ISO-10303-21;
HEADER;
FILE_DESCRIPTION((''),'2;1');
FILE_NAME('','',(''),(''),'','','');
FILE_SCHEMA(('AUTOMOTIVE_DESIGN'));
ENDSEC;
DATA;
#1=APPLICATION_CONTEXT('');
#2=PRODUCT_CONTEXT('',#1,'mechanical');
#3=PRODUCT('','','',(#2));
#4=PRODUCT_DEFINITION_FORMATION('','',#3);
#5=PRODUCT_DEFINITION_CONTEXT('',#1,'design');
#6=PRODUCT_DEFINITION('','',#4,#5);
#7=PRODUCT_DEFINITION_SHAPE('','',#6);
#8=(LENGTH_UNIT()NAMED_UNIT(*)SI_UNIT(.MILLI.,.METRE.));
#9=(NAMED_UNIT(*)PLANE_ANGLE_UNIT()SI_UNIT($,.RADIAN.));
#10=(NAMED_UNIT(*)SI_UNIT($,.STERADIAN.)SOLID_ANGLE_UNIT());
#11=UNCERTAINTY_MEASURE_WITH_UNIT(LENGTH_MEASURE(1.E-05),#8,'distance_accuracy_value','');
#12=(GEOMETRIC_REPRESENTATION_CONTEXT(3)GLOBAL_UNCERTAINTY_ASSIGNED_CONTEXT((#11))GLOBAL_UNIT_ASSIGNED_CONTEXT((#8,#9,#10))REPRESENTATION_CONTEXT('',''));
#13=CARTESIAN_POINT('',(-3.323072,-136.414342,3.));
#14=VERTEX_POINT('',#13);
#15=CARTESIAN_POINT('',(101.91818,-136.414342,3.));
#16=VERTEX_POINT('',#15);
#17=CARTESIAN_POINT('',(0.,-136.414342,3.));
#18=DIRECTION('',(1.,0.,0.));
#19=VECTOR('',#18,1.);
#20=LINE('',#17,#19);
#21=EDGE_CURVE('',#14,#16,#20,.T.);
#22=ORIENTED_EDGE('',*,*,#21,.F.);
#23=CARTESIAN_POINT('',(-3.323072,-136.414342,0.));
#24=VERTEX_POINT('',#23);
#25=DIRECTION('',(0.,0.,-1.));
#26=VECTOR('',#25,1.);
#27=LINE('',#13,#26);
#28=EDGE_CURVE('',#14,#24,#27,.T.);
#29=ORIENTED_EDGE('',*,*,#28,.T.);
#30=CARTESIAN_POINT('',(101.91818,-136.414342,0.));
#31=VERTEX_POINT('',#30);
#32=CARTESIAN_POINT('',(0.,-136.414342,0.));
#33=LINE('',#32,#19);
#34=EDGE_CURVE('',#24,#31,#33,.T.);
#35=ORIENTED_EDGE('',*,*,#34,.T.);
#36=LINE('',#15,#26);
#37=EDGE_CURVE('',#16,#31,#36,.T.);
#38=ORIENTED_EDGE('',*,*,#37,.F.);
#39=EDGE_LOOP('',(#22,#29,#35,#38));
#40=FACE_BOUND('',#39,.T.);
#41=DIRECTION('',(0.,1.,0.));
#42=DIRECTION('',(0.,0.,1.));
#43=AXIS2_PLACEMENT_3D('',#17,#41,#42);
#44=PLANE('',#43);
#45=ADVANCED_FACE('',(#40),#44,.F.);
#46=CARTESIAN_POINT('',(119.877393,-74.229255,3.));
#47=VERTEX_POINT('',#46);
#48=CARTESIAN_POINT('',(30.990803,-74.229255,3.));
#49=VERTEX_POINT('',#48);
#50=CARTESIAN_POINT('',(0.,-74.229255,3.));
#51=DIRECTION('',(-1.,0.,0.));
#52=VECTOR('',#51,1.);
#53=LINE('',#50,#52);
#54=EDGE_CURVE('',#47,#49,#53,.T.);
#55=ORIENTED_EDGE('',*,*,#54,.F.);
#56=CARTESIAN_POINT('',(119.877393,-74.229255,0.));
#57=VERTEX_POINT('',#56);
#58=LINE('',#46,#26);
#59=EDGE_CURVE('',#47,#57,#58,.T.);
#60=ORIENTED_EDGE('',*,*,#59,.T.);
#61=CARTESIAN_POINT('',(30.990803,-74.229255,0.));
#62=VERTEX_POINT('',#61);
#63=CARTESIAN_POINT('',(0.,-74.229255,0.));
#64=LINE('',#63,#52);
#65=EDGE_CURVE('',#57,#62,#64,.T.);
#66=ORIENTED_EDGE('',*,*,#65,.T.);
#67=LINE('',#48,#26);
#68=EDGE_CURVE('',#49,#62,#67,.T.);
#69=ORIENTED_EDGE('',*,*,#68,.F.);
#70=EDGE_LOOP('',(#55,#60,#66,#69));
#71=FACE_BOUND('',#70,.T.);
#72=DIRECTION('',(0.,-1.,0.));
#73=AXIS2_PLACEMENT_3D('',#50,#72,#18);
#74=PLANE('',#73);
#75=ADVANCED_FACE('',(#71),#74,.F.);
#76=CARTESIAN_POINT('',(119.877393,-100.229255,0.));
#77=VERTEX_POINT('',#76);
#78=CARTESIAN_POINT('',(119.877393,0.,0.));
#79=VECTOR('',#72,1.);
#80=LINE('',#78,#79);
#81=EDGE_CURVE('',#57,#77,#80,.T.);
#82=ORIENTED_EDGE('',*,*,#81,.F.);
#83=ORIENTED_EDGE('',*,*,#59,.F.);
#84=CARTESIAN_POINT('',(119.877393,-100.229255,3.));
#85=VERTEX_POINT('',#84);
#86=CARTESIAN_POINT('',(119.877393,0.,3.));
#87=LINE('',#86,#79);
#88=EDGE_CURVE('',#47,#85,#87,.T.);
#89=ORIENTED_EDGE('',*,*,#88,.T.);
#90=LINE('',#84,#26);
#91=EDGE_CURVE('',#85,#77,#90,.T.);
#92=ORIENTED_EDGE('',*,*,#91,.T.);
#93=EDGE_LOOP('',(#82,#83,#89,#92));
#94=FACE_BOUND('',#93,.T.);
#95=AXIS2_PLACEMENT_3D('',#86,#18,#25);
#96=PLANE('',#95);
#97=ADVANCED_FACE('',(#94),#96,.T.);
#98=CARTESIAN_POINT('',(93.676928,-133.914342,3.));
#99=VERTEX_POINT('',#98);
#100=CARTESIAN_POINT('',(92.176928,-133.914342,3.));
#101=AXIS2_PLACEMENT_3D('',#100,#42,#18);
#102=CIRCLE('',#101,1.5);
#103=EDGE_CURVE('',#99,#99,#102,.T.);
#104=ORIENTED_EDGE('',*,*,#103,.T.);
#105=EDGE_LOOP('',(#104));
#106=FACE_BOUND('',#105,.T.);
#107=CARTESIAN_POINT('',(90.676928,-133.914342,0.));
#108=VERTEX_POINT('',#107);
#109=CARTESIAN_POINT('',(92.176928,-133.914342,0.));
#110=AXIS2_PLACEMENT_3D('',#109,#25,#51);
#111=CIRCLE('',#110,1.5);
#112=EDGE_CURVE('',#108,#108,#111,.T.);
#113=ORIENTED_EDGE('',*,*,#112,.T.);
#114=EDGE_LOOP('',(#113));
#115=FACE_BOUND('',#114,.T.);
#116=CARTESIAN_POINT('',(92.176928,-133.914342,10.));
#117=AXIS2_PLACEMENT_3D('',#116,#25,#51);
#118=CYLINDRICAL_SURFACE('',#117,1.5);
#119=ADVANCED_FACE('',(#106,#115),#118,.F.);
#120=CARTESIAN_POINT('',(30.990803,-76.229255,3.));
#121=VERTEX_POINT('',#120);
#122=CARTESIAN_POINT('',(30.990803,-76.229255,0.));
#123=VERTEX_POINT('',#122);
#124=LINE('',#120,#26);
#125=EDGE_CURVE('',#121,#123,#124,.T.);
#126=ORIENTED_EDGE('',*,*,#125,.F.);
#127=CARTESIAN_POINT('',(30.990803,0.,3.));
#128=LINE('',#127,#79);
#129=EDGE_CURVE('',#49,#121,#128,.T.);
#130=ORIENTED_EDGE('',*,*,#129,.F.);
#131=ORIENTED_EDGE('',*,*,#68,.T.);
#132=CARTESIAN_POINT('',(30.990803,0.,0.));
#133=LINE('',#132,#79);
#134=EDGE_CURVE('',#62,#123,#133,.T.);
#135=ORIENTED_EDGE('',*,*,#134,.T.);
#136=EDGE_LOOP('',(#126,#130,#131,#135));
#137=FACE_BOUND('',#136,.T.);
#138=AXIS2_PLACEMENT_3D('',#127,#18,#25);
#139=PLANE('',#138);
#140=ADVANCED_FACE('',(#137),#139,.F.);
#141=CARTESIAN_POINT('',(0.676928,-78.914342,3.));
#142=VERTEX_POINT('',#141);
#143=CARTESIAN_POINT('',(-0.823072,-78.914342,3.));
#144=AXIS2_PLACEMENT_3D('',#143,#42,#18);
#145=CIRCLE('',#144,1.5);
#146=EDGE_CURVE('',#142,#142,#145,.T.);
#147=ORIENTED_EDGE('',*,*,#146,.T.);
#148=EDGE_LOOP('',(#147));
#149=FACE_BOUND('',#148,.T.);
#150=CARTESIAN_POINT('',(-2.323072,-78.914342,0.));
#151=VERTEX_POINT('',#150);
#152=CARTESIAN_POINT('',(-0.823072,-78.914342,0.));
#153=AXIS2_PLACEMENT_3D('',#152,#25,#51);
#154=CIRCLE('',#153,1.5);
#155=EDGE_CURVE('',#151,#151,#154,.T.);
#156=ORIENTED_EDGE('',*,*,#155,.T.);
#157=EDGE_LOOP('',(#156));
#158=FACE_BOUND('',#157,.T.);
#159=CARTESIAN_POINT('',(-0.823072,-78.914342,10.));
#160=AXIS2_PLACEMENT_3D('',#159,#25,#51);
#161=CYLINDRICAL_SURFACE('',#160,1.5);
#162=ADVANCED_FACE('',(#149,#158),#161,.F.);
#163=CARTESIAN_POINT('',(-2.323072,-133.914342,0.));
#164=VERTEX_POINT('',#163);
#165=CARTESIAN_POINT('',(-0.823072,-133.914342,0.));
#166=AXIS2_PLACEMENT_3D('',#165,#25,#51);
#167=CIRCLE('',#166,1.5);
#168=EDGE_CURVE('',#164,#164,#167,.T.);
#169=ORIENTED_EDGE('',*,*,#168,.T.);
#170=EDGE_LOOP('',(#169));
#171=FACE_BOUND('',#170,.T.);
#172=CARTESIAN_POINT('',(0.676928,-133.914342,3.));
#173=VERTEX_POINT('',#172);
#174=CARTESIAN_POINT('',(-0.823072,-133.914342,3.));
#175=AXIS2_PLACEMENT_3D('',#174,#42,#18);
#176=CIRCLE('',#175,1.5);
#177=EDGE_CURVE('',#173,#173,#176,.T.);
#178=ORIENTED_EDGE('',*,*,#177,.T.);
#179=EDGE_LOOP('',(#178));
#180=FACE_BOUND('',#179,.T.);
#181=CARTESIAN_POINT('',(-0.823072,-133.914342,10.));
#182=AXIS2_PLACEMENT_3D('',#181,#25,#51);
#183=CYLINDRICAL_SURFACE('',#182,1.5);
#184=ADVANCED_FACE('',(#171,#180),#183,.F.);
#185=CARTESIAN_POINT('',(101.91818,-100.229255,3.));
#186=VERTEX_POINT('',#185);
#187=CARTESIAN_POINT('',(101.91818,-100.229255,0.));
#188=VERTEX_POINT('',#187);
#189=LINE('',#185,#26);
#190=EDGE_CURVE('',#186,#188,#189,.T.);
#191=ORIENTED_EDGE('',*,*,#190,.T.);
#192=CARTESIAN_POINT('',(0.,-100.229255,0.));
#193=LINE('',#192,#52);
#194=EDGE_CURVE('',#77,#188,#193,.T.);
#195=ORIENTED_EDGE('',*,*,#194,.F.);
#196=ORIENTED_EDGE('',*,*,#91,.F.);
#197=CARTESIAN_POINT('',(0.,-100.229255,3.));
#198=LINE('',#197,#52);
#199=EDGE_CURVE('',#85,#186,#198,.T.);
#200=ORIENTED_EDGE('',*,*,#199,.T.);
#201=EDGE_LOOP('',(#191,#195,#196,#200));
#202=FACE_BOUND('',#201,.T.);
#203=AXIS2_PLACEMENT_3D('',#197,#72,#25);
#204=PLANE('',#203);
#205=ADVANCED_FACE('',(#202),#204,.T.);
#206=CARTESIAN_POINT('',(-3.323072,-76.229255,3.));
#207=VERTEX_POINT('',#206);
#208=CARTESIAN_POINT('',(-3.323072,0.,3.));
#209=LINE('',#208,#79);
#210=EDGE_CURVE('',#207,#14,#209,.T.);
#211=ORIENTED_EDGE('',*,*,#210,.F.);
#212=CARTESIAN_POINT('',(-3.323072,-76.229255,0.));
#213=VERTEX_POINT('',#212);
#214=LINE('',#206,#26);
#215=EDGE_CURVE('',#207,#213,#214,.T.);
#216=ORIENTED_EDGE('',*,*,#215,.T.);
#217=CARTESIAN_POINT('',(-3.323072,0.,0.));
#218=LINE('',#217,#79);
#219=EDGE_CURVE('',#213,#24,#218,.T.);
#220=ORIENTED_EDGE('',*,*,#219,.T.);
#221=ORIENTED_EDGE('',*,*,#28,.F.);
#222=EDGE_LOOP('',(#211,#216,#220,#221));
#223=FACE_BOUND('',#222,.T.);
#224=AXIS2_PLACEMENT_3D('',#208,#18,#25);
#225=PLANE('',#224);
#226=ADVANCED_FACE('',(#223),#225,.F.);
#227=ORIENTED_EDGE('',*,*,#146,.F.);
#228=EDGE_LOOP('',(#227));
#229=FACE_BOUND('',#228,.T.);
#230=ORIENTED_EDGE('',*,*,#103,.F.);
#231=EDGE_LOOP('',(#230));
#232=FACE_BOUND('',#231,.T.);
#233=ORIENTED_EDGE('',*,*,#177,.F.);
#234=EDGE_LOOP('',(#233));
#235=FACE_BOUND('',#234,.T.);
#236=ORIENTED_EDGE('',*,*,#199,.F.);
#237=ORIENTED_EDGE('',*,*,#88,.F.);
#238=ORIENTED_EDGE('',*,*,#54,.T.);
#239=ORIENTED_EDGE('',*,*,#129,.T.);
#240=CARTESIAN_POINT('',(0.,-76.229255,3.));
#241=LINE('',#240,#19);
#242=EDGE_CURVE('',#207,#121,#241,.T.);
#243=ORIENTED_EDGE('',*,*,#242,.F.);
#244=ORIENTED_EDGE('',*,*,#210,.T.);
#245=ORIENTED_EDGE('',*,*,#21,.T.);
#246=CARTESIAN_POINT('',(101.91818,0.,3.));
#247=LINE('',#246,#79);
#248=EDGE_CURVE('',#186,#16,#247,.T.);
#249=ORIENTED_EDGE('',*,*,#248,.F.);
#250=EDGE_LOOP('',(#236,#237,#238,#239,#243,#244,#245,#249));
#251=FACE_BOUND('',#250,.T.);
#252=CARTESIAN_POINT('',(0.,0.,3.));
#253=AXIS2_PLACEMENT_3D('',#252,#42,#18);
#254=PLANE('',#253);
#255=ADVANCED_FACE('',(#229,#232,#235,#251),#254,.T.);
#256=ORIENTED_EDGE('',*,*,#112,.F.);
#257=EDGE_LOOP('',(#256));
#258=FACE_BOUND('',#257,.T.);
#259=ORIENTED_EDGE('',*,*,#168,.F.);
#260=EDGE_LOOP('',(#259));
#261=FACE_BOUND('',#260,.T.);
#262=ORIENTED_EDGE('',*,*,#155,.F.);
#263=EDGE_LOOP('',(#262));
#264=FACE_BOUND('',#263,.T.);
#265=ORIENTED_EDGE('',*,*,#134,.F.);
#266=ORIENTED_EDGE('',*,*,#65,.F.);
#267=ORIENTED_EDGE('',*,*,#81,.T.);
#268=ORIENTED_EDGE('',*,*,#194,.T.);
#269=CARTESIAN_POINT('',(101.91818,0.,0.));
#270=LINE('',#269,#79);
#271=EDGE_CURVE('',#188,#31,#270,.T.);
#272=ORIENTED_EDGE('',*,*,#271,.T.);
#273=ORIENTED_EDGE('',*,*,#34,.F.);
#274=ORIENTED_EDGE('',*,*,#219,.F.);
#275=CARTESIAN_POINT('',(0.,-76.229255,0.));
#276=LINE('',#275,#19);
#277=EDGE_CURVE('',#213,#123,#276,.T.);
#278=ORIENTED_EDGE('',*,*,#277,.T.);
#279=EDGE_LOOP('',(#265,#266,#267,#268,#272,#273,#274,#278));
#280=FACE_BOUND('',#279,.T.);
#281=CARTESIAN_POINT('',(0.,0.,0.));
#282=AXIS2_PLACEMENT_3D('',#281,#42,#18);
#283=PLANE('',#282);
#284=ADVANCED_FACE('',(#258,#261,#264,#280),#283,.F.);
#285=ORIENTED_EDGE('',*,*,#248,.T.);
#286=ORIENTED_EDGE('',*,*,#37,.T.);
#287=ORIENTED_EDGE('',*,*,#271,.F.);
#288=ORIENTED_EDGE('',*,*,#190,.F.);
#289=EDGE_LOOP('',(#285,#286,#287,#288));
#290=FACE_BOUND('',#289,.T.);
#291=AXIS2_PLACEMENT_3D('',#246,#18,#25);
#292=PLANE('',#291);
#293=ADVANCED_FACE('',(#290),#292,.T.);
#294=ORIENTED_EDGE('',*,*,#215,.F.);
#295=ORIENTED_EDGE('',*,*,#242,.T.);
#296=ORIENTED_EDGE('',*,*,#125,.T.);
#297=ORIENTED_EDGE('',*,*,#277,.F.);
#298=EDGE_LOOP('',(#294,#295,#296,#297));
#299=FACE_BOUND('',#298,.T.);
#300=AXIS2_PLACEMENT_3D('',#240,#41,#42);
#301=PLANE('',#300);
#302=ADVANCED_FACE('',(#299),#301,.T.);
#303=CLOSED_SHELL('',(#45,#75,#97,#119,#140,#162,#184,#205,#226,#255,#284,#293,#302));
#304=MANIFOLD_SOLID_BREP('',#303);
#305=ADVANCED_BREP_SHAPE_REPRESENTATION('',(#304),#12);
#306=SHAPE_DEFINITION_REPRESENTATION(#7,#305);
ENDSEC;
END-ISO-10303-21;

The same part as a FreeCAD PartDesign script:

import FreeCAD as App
import Part
import Sketcher

V = App.Vector
Q = App.Units.Quantity

doc = App.newDocument("Part")
params = doc.addObject("Spreadsheet::Sheet", "Params")
for row, (alias, value) in enumerate([
    ("sketch1_height", "2 mm"),
    ("sketch1_height2", "26 mm"),
    ("pad1_length", "3 mm"),
    ("sketch2_diameter", "3 mm"),
    ("pocket1_length", "10 mm"),
], start=1):
    params.set(f"A{row}", alias)
    params.set(f"B{row}", "=" + value)
    params.setAlias(f"B{row}", alias)

body = doc.addObject("PartDesign::Body", "Body")

# Sketch on XY plane
sketch1 = doc.addObject("Sketcher::SketchObject", "Sketch")
body.addObject(sketch1)
sketch1.AttachmentSupport = (doc.XY_Plane, [""])
sketch1.MapMode = "FlatFace"
sketch1.addGeometry([
    Part.LineSegment(V(119.9, -74.2, 0), V(31, -74.2, 0)),  # 0
    Part.LineSegment(V(31, -74.2, 0), V(31, -76.2, 0)),  # 1
    Part.LineSegment(V(31, -76.2, 0), V(-3.3, -76.2, 0)),  # 2
    Part.LineSegment(V(-3.3, -76.2, 0), V(-3.3, -136.4, 0)),  # 3
    Part.LineSegment(V(-3.3, -136.4, 0), V(101.9, -136.4, 0)),  # 4
    Part.LineSegment(V(101.9, -136.4, 0), V(101.9, -100.2, 0)),  # 5
    Part.LineSegment(V(101.9, -100.2, 0), V(119.9, -100.2, 0)),  # 6
    Part.LineSegment(V(119.9, -100.2, 0), V(119.9, -74.2, 0)),  # 7
], False)
sketch1.addConstraint([
    Sketcher.Constraint("Coincident", 0, 2, 1, 1),
    Sketcher.Constraint("Coincident", 1, 2, 2, 1),
    Sketcher.Constraint("Coincident", 2, 2, 3, 1),
    Sketcher.Constraint("Coincident", 3, 2, 4, 1),
    Sketcher.Constraint("Coincident", 4, 2, 5, 1),
    Sketcher.Constraint("Coincident", 5, 2, 6, 1),
    Sketcher.Constraint("Coincident", 6, 2, 7, 1),
    Sketcher.Constraint("Coincident", 7, 2, 0, 1),
    Sketcher.Constraint("Horizontal", 0),
    Sketcher.Constraint("Vertical", 1),
    Sketcher.Constraint("Horizontal", 2),
    Sketcher.Constraint("Vertical", 3),
    Sketcher.Constraint("Horizontal", 4),
    Sketcher.Constraint("Vertical", 5),
    Sketcher.Constraint("Horizontal", 6),
    Sketcher.Constraint("Vertical", 7),
    Sketcher.Constraint("DistanceY", 1, 2, 1, 1, Q("2 mm")),
    Sketcher.Constraint("DistanceY", 7, 1, 7, 2, Q("26 mm")),
    Sketcher.Constraint("DistanceX", 0, 2, 0, 1, Q("88.88659 mm")),
    Sketcher.Constraint("DistanceX", 4, 1, 4, 2, Q("105.241251 mm")),
    Sketcher.Constraint("DistanceX", 2, 2, 2, 1, Q("34.313875 mm")),
    Sketcher.Constraint("DistanceY", 3, 2, 3, 1, Q("60.185087 mm")),
    Sketcher.Constraint("DistanceX", 2, 2, -1, 1, Q("3.323072 mm")),
    Sketcher.Constraint("DistanceY", 0, 2, -1, 1, Q("74.229255 mm")),
])
sketch1.setExpression("Constraints[16]", "Params.sketch1_height")
sketch1.setExpression("Constraints[17]", "Params.sketch1_height2")
pad1 = doc.addObject("PartDesign::Pad", "Pad")
body.addObject(pad1)
pad1.Profile = sketch1
pad1.setExpression("Length", "Params.pad1_length")

# Sketch on XY plane
sketch2 = doc.addObject("Sketcher::SketchObject", "Sketch001")
body.addObject(sketch2)
sketch2.AttachmentSupport = (doc.XY_Plane, [""])
sketch2.MapMode = "FlatFace"
sketch2.addGeometry([
    Part.Circle(V(92.2, -133.9, 0), V(0, 0, 1), 1.5),
    Part.Circle(V(-0.8, -133.9, 0), V(0, 0, 1), 1.5),
    Part.Circle(V(-0.8, -78.9, 0), V(0, 0, 1), 1.5),
], False)
sketch2.addConstraint([
    Sketcher.Constraint("Equal", 0, 1),
    Sketcher.Constraint("Equal", 1, 2),
    Sketcher.Constraint("Horizontal", 0, 3, 1, 3),
    Sketcher.Constraint("Vertical", 1, 3, 2, 3),
    Sketcher.Constraint("Diameter", 0, Q("3 mm")),
    Sketcher.Constraint("DistanceX", 1, 3, 0, 3, Q("93 mm")),
    Sketcher.Constraint("DistanceY", 1, 3, 2, 3, Q("55 mm")),
    Sketcher.Constraint("DistanceX", -1, 1, 0, 3, Q("92.176928 mm")),
    Sketcher.Constraint("DistanceY", 0, 3, -1, 1, Q("133.914342 mm")),
])
sketch2.setExpression("Constraints[4]", "Params.sketch2_diameter")
pocket1 = doc.addObject("PartDesign::Pocket", "Pocket")
body.addObject(pocket1)
pocket1.Profile = sketch2
pocket1.setExpression("Length", "Params.pocket1_length")
pocket1.Reversed = True

doc.recompute()
